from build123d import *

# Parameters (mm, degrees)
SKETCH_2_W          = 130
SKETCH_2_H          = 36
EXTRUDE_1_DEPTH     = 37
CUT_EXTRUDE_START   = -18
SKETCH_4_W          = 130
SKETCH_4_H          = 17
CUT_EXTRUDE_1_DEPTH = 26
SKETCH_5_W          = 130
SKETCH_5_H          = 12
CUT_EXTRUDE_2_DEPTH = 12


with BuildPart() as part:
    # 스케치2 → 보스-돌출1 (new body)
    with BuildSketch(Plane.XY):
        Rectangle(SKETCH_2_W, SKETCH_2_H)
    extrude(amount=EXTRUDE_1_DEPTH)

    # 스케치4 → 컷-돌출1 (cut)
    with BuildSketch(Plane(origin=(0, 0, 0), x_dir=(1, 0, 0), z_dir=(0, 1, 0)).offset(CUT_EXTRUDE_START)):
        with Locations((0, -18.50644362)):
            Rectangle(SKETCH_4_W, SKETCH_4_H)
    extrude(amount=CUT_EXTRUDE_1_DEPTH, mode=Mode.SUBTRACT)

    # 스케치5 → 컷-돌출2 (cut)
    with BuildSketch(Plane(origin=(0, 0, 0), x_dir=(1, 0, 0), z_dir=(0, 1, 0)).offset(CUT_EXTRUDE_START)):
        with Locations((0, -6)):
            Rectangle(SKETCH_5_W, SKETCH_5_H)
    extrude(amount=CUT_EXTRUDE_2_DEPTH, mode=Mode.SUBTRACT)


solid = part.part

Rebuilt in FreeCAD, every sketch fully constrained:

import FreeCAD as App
import Part
import Sketcher

doc = App.newDocument("Part")
params = doc.addObject("Spreadsheet::Sheet", "Params")
for row, (alias, value) in enumerate([
    ("sketch1_width", "130 mm"),
    ("sketch1_height", "36 mm"),
    ("pad1_length", "37 mm"),
    ("sketch2_width", "130 mm"),
    ("sketch2_height", "17 mm"),
    ("pocket1_length", "26 mm"),
    ("sketch3_width", "130 mm"),
    ("sketch3_height", "12 mm"),
    ("pocket2_length", "12 mm"),
], start=1):
    params.set(f"A{row}", alias)
    params.set(f"B{row}", "=" + value)
    params.setAlias(f"B{row}", alias)

body = doc.addObject("PartDesign::Body", "Body")

# Sketch on XY plane
sketch1 = doc.addObject("Sketcher::SketchObject", "Sketch")
body.addObject(sketch1)
sketch1.AttachmentSupport = (doc.XY_Plane, [""])
sketch1.MapMode = "FlatFace"
sketch1.addGeometry([
    Part.LineSegment(App.Vector(-65, 18, 0), App.Vector(-65, -18, 0)),
    Part.LineSegment(App.Vector(-65, -18, 0), App.Vector(65, -18, 0)),
    Part.LineSegment(App.Vector(65, -18, 0), App.Vector(65, 18, 0)),
    Part.LineSegment(App.Vector(65, 18, 0), App.Vector(-65, 18, 0)),
], False)
sketch1.addConstraint([
    Sketcher.Constraint("Coincident", 0, 2, 1, 1),
    Sketcher.Constraint("Coincident", 1, 2, 2, 1),
    Sketcher.Constraint("Coincident", 2, 2, 3, 1),
    Sketcher.Constraint("Coincident", 3, 2, 0, 1),
    Sketcher.Constraint("Vertical", 0),
    Sketcher.Constraint("Horizontal", 1),
    Sketcher.Constraint("Vertical", 2),
    Sketcher.Constraint("Horizontal", 3),
    Sketcher.Constraint("Symmetric", 0, 2, 2, 2, -1, 1),
    Sketcher.Constraint("DistanceX", 1, 1, 1, 2, 130.0),
    Sketcher.Constraint("DistanceY", 0, 2, 0, 1, 36.0),
])
sketch1.setExpression("Constraints[9]", "Params.sketch1_width")
sketch1.setExpression("Constraints[10]", "Params.sketch1_height")
pad1 = doc.addObject("PartDesign::Pad", "Pad")
body.addObject(pad1)
pad1.Profile = sketch1
pad1.setExpression("Length", "Params.pad1_length")

# Sketch on XZ plane
sketch2 = doc.addObject("Sketcher::SketchObject", "Sketch001")
body.addObject(sketch2)
sketch2.AttachmentSupport = (doc.XZ_Plane, [""])
sketch2.MapMode = "FlatFace"
sketch2.AttachmentOffset = App.Placement(App.Vector(0, 0, 18), App.Rotation())
sketch2.addGeometry([
    Part.LineSegment(App.Vector(-65, 10.006444, 0), App.Vector(-65, 27.006444, 0)),
    Part.LineSegment(App.Vector(-65, 27.006444, 0), App.Vector(65, 27.006444, 0)),
    Part.LineSegment(App.Vector(65, 27.006444, 0), App.Vector(65, 10.006444, 0)),
    Part.LineSegment(App.Vector(65, 10.006444, 0), App.Vector(-65, 10.006444, 0)),
], False)
sketch2.addConstraint([
    Sketcher.Constraint("Coincident", 0, 2, 1, 1),
    Sketcher.Constraint("Coincident", 1, 2, 2, 1),
    Sketcher.Constraint("Coincident", 2, 2, 3, 1),
    Sketcher.Constraint("Coincident", 3, 2, 0, 1),
    Sketcher.Constraint("Vertical", 0),
    Sketcher.Constraint("Horizontal", 1),
    Sketcher.Constraint("Vertical", 2),
    Sketcher.Constraint("Horizontal", 3),
    Sketcher.Constraint("DistanceX", 1, 1, 1, 2, 130.0),
    Sketcher.Constraint("DistanceY", 0, 1, 0, 2, 17.0),
    Sketcher.Constraint("DistanceX", 0, 2, -1, 1, 65.0),
    Sketcher.Constraint("DistanceY", -1, 1, 0, 2, 27.006444),
])
sketch2.setExpression("Constraints[8]", "Params.sketch2_width")
sketch2.setExpression("Constraints[9]", "Params.sketch2_height")
pocket1 = doc.addObject("PartDesign::Pocket", "Pocket")
body.addObject(pocket1)
pocket1.Profile = sketch2
pocket1.setExpression("Length", "Params.pocket1_length")

# Sketch on XZ plane
sketch3 = doc.addObject("Sketcher::SketchObject", "Sketch002")
body.addObject(sketch3)
sketch3.AttachmentSupport = (doc.XZ_Plane, [""])
sketch3.MapMode = "FlatFace"
sketch3.AttachmentOffset = App.Placement(App.Vector(0, 0, 18), App.Rotation())
sketch3.addGeometry([
    Part.LineSegment(App.Vector(-65, 0, 0), App.Vector(-65, 12, 0)),
    Part.LineSegment(App.Vector(-65, 12, 0), App.Vector(65, 12, 0)),
    Part.LineSegment(App.Vector(65, 12, 0), App.Vector(65, 0, 0)),
    Part.LineSegment(App.Vector(65, 0, 0), App.Vector(-65, 0, 0)),
], False)
sketch3.addConstraint([
    Sketcher.Constraint("Coincident", 0, 2, 1, 1),
    Sketcher.Constraint("Coincident", 1, 2, 2, 1),
    Sketcher.Constraint("Coincident", 2, 2, 3, 1),
    Sketcher.Constraint("Coincident", 3, 2, 0, 1),
    Sketcher.Constraint("Vertical", 0),
    Sketcher.Constraint("Horizontal", 1),
    Sketcher.Constraint("Vertical", 2),
    Sketcher.Constraint("Horizontal", 3),
    Sketcher.Constraint("Symmetric", 2, 2, 3, 2, -1, 1),
    Sketcher.Constraint("DistanceX", 1, 1, 1, 2, 130.0),
    Sketcher.Constraint("DistanceY", 0, 1, 0, 2, 12.0),
])
sketch3.setExpression("Constraints[9]", "Params.sketch3_width")
sketch3.setExpression("Constraints[10]", "Params.sketch3_height")
pocket2 = doc.addObject("PartDesign::Pocket", "Pocket001")
body.addObject(pocket2)
pocket2.Profile = sketch3
pocket2.setExpression("Length", "Params.pocket2_length")

doc.recompute()
